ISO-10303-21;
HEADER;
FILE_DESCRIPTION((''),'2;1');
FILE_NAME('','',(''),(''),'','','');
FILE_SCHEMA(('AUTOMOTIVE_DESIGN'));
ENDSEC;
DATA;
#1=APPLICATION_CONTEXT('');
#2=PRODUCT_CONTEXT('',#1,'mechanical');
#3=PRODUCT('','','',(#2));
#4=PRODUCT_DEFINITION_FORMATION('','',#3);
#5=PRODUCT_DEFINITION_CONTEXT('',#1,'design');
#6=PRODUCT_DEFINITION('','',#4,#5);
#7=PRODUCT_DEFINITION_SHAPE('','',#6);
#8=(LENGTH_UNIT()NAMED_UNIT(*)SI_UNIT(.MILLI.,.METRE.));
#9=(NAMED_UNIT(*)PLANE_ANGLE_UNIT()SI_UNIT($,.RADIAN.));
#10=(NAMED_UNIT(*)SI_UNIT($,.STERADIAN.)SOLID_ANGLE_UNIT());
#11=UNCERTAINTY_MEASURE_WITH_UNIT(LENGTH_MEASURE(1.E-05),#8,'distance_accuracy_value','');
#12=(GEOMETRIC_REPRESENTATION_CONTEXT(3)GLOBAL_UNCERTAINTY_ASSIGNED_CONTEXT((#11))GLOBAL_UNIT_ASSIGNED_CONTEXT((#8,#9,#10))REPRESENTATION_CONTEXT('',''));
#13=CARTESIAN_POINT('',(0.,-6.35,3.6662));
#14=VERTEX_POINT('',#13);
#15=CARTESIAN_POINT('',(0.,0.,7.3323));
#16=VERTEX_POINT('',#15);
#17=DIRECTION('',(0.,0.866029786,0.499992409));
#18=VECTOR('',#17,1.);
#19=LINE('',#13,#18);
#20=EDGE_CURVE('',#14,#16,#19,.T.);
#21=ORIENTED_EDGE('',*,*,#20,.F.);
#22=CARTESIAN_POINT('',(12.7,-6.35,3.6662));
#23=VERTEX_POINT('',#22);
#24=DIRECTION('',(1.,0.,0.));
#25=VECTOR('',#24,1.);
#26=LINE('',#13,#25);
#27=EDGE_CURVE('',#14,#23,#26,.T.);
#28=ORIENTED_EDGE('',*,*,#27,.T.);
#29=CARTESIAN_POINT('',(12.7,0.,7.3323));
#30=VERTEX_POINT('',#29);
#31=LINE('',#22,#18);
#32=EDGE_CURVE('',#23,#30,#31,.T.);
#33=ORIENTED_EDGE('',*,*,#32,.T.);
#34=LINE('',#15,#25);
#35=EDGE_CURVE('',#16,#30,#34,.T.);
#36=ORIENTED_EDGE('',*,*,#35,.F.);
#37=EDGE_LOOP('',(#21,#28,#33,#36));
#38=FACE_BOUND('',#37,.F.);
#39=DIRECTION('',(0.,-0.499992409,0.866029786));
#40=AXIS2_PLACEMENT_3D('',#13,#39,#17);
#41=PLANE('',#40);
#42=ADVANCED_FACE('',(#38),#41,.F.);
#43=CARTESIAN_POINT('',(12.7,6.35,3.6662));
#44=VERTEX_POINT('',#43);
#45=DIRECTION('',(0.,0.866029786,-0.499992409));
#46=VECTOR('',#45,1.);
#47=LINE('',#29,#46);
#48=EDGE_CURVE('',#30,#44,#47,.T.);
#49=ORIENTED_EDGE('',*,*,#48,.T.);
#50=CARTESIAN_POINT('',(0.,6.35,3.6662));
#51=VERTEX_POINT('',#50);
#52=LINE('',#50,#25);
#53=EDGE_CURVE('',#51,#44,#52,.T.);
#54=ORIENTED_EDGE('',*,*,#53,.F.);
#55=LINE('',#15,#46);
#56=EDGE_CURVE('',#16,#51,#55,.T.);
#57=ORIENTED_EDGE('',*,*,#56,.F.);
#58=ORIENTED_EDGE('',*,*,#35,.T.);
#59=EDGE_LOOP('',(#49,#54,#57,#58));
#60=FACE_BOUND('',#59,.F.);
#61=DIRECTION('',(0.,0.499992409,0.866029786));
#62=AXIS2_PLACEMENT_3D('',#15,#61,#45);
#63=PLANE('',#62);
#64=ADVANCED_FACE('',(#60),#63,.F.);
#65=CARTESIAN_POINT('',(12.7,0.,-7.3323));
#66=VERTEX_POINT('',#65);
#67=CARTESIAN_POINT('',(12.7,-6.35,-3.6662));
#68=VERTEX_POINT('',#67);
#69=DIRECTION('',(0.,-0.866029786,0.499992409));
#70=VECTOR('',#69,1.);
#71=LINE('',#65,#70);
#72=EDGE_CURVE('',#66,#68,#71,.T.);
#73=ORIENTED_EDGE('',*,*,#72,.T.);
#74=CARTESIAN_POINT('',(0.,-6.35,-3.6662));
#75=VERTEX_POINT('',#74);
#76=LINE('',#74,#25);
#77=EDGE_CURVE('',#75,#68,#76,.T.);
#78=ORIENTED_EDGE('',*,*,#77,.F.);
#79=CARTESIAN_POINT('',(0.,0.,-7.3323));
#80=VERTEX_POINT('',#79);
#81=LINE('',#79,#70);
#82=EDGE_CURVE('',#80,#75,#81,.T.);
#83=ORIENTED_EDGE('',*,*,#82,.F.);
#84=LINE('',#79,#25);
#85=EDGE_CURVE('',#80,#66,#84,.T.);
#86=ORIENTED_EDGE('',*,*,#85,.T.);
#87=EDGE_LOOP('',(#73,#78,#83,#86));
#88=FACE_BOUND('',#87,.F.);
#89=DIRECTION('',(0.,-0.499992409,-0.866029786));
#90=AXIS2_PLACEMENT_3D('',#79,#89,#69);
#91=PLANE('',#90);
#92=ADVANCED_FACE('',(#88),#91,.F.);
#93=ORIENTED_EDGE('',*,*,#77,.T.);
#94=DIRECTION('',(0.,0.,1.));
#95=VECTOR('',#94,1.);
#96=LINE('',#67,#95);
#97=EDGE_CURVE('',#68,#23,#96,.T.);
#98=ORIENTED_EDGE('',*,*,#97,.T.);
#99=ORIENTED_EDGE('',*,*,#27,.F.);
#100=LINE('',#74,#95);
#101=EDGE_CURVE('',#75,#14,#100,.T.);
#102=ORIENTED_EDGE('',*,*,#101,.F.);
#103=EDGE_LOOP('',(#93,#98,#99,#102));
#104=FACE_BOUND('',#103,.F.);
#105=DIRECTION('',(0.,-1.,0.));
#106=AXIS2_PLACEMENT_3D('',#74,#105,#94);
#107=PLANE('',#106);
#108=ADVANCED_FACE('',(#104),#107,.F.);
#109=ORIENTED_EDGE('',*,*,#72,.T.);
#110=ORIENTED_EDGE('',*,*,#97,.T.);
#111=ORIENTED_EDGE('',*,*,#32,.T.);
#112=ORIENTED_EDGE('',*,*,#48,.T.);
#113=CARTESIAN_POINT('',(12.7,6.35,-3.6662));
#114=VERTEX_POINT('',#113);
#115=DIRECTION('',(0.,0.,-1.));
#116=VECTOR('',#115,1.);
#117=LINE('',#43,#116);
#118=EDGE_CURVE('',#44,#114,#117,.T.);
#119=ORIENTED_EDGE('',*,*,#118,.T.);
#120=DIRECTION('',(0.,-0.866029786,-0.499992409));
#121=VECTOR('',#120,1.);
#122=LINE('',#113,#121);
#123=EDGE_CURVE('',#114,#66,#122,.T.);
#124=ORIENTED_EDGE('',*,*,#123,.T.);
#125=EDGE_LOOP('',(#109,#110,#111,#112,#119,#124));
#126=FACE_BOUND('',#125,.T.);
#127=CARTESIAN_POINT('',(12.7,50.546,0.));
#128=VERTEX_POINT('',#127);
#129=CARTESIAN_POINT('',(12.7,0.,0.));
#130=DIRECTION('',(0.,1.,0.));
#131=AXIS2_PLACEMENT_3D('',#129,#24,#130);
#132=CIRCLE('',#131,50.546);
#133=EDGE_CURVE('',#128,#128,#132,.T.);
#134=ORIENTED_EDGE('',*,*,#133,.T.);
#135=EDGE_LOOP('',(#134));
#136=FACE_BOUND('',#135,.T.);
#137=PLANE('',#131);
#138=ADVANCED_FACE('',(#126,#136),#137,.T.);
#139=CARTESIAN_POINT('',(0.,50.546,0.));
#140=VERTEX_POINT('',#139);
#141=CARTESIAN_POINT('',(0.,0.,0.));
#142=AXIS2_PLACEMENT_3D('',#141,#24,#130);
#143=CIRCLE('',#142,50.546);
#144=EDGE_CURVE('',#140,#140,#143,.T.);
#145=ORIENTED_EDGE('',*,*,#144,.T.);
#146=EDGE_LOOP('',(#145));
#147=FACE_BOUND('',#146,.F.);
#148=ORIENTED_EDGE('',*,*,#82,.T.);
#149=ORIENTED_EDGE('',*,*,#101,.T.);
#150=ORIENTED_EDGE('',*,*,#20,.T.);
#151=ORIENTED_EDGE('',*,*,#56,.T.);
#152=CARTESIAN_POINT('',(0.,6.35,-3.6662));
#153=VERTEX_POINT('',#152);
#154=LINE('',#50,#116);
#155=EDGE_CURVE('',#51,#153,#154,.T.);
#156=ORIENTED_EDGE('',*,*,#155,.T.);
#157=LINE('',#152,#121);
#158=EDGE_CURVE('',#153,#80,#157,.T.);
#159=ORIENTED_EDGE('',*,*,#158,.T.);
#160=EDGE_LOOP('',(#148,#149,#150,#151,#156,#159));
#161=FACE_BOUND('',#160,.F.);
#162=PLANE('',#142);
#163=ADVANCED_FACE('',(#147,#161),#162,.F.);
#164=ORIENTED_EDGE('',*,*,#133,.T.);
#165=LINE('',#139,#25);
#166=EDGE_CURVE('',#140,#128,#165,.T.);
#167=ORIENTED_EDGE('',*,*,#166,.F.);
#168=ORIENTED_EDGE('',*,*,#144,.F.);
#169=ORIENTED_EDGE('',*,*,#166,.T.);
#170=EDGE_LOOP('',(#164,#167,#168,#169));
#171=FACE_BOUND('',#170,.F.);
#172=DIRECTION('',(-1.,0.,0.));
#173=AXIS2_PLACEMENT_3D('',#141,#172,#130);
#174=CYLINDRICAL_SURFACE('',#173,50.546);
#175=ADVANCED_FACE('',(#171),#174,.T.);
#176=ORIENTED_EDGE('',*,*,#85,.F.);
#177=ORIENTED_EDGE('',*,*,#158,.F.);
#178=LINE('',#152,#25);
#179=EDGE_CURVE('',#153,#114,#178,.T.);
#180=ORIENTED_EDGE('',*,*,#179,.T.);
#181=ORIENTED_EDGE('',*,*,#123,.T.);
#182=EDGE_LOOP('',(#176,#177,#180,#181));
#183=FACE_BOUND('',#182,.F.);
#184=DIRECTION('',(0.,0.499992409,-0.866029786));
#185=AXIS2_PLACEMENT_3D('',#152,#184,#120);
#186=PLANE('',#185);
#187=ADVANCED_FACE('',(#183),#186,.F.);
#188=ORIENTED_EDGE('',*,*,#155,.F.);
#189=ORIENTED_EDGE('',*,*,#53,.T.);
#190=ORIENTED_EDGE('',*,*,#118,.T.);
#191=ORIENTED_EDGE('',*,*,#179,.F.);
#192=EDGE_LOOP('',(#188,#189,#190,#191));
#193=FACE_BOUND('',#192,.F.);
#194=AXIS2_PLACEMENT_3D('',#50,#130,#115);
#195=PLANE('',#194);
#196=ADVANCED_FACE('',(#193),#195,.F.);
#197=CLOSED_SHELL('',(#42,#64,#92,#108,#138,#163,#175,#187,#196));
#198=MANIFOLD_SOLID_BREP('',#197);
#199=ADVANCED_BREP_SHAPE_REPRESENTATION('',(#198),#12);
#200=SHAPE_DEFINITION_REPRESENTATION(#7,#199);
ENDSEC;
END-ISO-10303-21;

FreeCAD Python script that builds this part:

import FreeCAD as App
import Part
import Sketcher
from FreeCAD import Vector
Q = App.Units.Quantity

doc = App.newDocument("Part")
params = doc.addObject("Spreadsheet::Sheet", "Params")
for row, (alias, value) in enumerate([
    ("sketch1_diameter", "3.98 in"),
    ("pad1_length", "0.5 in"),
], start=1):
    params.set(f"A{row}", alias)
    params.set(f"B{row}", "=" + value)
    params.setAlias(f"B{row}", alias)

body = doc.addObject("PartDesign::Body", "Body")

sketch1 = doc.addObject("Sketcher::SketchObject", "Sketch")
body.addObject(sketch1)
sketch1.AttachmentSupport = (doc.YZ_Plane, [""])
sketch1.MapMode = "FlatFace"
sketch1.addGeometry(Part.Circle(Vector(0, 0, 0), Vector(0, 0, 1), 51), False)
sketch1.addGeometry(Part.LineSegment(Vector(6, 4, 0), Vector(6, -4, 0)), False)
sketch1.addGeometry(Part.LineSegment(Vector(6, -4, 0), Vector(0, -7, 0)), False)
sketch1.addGeometry(Part.LineSegment(Vector(0, -7, 0), Vector(-6, -4, 0)), False)
sketch1.addGeometry(Part.LineSegment(Vector(-6, -4, 0), Vector(-6, 4, 0)), False)
sketch1.addGeometry(Part.LineSegment(Vector(-6, 4, 0), Vector(0, 7, 0)), False)
sketch1.addGeometry(Part.LineSegment(Vector(0, 7, 0), Vector(6, 4, 0)), False)
sketch1.addConstraint(Sketcher.Constraint("Coincident", 1, 2, 2, 1))
sketch1.addConstraint(Sketcher.Constraint("Coincident", 2, 2, 3, 1))
sketch1.addConstraint(Sketcher.Constraint("Coincident", 3, 2, 4, 1))
sketch1.addConstraint(Sketcher.Constraint("Coincident", 4, 2, 5, 1))
sketch1.addConstraint(Sketcher.Constraint("Coincident", 5, 2, 6, 1))
sketch1.addConstraint(Sketcher.Constraint("Coincident", 6, 2, 1, 1))
sketch1.addConstraint(Sketcher.Constraint("Vertical", 1))
sketch1.addConstraint(Sketcher.Constraint("Vertical", 4))
sketch1.addConstraint(Sketcher.Constraint("Coincident", 0, 3, -1, 1))
sketch1.addConstraint(Sketcher.Constraint("Symmetric", 1, 2, 4, 2, -1, 1))
sketch1.addConstraint(Sketcher.Constraint("Symmetric", 2, 2, 5, 2, -1, 1))
sketch1.addConstraint(Sketcher.Constraint("PointOnObject", 2, 2, -2))
sketch1.addConstraint(Sketcher.Constraint("Parallel", 3, 6))
sketch1.addConstraint(Sketcher.Constraint("Horizontal", 1, 2, 3, 2))
sketch1.addConstraint(Sketcher.Constraint("Diameter", 0, Q("3.98 in")))
sketch1.addConstraint(Sketcher.Constraint("DistanceX", 3, 2, 1, 2, Q("0.5 in")))
sketch1.addConstraint(Sketcher.Constraint("Angle", 2, Q("-150.0005 deg")))
sketch1.addConstraint(Sketcher.Constraint("DistanceY", 2, 2, 4, 2, Q("0.433 in")))
sketch1.setExpression("Constraints[14]", "Params.sketch1_diameter")
pad1 = doc.addObject("PartDesign::Pad", "Pad")
body.addObject(pad1)
pad1.Profile = sketch1
pad1.setExpression("Length", "Params.pad1_length")

doc.recompute()
